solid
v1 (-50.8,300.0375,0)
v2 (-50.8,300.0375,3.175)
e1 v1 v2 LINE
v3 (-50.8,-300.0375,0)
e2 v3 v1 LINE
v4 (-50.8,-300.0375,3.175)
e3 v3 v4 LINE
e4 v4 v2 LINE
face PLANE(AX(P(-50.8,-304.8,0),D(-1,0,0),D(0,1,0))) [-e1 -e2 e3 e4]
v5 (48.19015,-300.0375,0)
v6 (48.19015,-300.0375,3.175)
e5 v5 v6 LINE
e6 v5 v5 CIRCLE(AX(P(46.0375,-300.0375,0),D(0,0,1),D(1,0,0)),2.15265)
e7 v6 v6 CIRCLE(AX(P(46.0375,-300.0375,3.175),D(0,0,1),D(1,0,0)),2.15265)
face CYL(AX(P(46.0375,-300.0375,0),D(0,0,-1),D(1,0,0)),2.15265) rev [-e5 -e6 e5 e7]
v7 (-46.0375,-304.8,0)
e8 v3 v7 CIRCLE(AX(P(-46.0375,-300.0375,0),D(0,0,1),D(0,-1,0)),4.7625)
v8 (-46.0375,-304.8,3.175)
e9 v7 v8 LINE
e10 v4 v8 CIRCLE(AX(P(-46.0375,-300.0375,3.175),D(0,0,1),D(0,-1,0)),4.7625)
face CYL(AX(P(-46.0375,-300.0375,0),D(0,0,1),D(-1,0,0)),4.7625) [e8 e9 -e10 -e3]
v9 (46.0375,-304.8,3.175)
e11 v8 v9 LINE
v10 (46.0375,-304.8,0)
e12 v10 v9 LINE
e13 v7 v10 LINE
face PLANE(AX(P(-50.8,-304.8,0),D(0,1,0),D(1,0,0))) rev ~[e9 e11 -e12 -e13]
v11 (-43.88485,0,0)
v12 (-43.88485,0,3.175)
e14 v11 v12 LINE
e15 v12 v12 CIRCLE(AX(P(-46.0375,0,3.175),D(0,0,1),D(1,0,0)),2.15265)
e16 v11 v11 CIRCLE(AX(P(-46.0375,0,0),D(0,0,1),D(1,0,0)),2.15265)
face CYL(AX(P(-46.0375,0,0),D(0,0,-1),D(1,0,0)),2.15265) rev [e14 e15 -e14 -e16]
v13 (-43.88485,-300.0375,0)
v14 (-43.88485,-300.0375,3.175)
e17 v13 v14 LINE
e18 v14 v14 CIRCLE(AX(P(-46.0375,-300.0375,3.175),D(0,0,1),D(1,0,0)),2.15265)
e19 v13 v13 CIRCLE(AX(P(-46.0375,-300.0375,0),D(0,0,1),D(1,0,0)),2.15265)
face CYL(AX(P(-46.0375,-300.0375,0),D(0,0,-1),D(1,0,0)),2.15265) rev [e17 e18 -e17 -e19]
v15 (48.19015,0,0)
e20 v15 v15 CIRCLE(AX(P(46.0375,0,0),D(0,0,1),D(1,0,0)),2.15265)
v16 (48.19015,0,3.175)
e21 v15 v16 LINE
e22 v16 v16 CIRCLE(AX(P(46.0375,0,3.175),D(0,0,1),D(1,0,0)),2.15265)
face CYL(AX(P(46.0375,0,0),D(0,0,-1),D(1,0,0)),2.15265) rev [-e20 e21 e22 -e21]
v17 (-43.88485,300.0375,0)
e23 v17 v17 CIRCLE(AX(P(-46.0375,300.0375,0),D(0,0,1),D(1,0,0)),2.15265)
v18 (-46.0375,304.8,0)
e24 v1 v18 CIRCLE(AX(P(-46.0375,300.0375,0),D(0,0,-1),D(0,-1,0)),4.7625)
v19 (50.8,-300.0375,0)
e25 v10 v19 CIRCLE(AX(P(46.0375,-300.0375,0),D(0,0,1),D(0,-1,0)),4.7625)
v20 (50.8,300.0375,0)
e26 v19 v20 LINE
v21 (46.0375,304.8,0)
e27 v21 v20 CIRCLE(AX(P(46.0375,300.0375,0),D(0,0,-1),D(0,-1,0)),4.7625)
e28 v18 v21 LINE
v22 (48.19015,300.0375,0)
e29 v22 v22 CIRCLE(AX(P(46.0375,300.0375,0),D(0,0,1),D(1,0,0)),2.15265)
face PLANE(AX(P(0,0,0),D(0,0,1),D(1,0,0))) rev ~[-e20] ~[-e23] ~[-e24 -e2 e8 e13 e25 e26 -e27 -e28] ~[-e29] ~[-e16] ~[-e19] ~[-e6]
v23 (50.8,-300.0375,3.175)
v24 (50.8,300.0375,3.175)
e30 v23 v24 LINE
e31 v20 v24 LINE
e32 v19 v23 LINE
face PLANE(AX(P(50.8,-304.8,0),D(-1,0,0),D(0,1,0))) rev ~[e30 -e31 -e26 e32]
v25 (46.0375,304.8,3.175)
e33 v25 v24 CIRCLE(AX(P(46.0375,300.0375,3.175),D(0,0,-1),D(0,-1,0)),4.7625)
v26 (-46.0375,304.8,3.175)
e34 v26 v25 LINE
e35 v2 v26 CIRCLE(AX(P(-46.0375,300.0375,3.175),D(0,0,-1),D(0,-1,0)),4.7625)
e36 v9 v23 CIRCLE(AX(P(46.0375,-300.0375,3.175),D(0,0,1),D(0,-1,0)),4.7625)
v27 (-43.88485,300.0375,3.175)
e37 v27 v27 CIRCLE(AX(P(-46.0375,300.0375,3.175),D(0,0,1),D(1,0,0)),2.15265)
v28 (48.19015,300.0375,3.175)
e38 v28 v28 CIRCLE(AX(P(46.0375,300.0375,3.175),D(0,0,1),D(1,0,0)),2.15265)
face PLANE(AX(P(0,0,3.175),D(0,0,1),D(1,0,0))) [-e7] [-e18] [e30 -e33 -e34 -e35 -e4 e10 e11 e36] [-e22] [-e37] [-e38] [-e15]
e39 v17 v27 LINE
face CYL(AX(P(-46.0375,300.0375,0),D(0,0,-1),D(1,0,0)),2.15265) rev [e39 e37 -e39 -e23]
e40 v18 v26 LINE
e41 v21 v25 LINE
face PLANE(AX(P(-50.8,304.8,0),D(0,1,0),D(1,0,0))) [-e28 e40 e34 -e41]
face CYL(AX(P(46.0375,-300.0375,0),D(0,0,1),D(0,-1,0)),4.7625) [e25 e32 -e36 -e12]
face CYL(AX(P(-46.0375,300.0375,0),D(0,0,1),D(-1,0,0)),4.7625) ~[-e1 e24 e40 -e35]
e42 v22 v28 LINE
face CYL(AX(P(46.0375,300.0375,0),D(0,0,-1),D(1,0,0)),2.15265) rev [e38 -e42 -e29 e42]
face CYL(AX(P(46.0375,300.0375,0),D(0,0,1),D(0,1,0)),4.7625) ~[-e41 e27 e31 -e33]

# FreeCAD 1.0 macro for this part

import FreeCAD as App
import Part
import Sketcher

V = App.Vector
Q = App.Units.Quantity


def edges_at(feature, points):
    """Names of the edges that pass closest to the given points."""
    edges = feature.Shape.Edges
    near = lambda p: min(range(len(edges)), key=lambda i: edges[i].distToShape(Part.Vertex(*p))[0])
    return sorted({f"Edge{near(p) + 1}" for p in points})

doc = App.newDocument("Part")
body = doc.addObject("PartDesign::Body", "Body")

# Sketch on XY plane
sketch1 = doc.addObject("Sketcher::SketchObject", "Sketch")
body.addObject(sketch1)
sketch1.AttachmentSupport = (doc.XY_Plane, [""])
sketch1.MapMode = "FlatFace"
sketch1.addGeometry(Part.LineSegment(V(-50.8, 304.8, 0), V(-50.8, -304.8, 0)), False)
sketch1.addGeometry(Part.LineSegment(V(-50.8, -304.8, 0), V(50.8, -304.8, 0)), False)
sketch1.addGeometry(Part.LineSegment(V(50.8, -304.8, 0), V(50.8, 304.8, 0)), False)
sketch1.addGeometry(Part.LineSegment(V(50.8, 304.8, 0), V(-50.8, 304.8, 0)), False)
sketch1.addGeometry(Part.Circle(V(-46, -300, 0), V(0, 0, 1), 2.2), False)
sketch1.addGeometry(Part.Circle(V(46, -300, 0), V(0, 0, 1), 2.2), False)
sketch1.addGeometry(Part.Circle(V(-46, 0, 0), V(0, 0, 1), 2.2), False)
sketch1.addGeometry(Part.Circle(V(-46, 300, 0), V(0, 0, 1), 2.2), False)
sketch1.addGeometry(Part.Circle(V(46, 0, 0), V(0, 0, 1), 2.2), False)
sketch1.addGeometry(Part.Circle(V(46, 300, 0), V(0, 0, 1), 2.2), False)
sketch1.addConstraint(Sketcher.Constraint("Coincident", 0, 2, 1, 1))
sketch1.addConstraint(Sketcher.Constraint("Coincident", 1, 2, 2, 1))
sketch1.addConstraint(Sketcher.Constraint("Coincident", 2, 2, 3, 1))
sketch1.addConstraint(Sketcher.Constraint("Coincident", 3, 2, 0, 1))
sketch1.addConstraint(Sketcher.Constraint("Vertical", 0))
sketch1.addConstraint(Sketcher.Constraint("Horizontal", 1))
sketch1.addConstraint(Sketcher.Constraint("Vertical", 2))
sketch1.addConstraint(Sketcher.Constraint("Horizontal", 3))
sketch1.addConstraint(Sketcher.Constraint("Equal", 4, 5))
sketch1.addConstraint(Sketcher.Constraint("Equal", 5, 6))
sketch1.addConstraint(Sketcher.Constraint("Equal", 6, 7))
sketch1.addConstraint(Sketcher.Constraint("Equal", 7, 8))
sketch1.addConstraint(Sketcher.Constraint("Equal", 8, 9))
sketch1.addConstraint(Sketcher.Constraint("Symmetric", 5, 3, 7, 3, -1, 1))
sketch1.addConstraint(Sketcher.Constraint("Symmetric", 6, 3, 8, 3, -1, 1))
sketch1.addConstraint(Sketcher.Constraint("Symmetric", 4, 3, 9, 3, -1, 1))
sketch1.addConstraint(Sketcher.Constraint("Symmetric", 0, 2, 2, 2, -1, 1))
sketch1.addConstraint(Sketcher.Constraint("Symmetric", 4, 3, 5, 3, -2))
sketch1.addConstraint(Sketcher.Constraint("PointOnObject", 6, 3, -1))
sketch1.addConstraint(Sketcher.Constraint("Vertical", 4, 3, 6, 3))
sketch1.addConstraint(Sketcher.Constraint("DistanceX", 1, 1, 1, 2, Q("4 in")))
sketch1.addConstraint(Sketcher.Constraint("DistanceY", 0, 2, 0, 1, Q("24 in")))
sketch1.addConstraint(Sketcher.Constraint("Diameter", 4, Q("0.1695 in")))
sketch1.addConstraint(Sketcher.Constraint("DistanceX", 4, 3, -1, 1, Q("1.8125 in")))
sketch1.addConstraint(Sketcher.Constraint("DistanceY", 4, 3, -1, 1, Q("11.8125 in")))
pad1 = doc.addObject("PartDesign::Pad", "Pad")
body.addObject(pad1)
pad1.Profile = sketch1
pad1.Length = Q("0.125 in")
doc.recompute()

fillet = doc.addObject("PartDesign::Fillet", "Fillet")
body.addObject(fillet)
fillet.Base = (pad1, edges_at(pad1, [
    (-50.8, 304.8, 1.587),
    (50.8, 304.8, 1.587),
    (50.8, -304.8, 1.587),
    (-50.8, -304.8, 1.587),
]))
fillet.Radius = Q("0.1875 in")

doc.recompute()
